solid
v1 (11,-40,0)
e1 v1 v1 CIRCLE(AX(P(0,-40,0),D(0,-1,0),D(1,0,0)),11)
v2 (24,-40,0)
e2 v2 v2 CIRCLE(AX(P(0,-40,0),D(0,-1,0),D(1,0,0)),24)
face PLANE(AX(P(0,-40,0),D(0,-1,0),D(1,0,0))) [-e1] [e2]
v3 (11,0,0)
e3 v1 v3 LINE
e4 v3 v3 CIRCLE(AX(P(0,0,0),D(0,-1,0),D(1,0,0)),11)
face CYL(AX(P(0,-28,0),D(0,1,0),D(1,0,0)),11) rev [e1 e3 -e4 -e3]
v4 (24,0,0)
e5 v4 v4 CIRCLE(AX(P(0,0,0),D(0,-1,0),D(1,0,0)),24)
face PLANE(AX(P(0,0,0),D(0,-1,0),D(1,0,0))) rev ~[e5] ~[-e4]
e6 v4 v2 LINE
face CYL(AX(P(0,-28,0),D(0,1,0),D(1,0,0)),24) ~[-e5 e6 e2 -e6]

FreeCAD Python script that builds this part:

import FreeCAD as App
import Part
import Sketcher
from FreeCAD import Vector
Q = App.Units.Quantity

doc = App.newDocument("Part")
params = doc.addObject("Spreadsheet::Sheet", "Params")
for row, (alias, value) in enumerate([
    ("sketch1_diameter", "48 mm"),
    ("sketch1_diameter2", "22 mm"),
    ("pad1_length", "12 mm"),
    ("sketch2_diameter", "48 mm"),
    ("sketch2_diameter2", "22 mm"),
    ("pad2_length", "16 mm"),
    ("sketch3_diameter", "48 mm"),
    ("sketch3_diameter2", "22 mm"),
    ("pad3_length", "12 mm"),
], start=1):
    params.set(f"A{row}", alias)
    params.set(f"B{row}", "=" + value)
    params.setAlias(f"B{row}", alias)

body = doc.addObject("PartDesign::Body", "Body")

# Sketch on XZ plane
sketch1 = doc.addObject("Sketcher::SketchObject", "Sketch")
body.addObject(sketch1)
sketch1.AttachmentSupport = (doc.XZ_Plane, [""])
sketch1.MapMode = "FlatFace"
sketch1.addGeometry(Part.Circle(Vector(0, 0, 0), Vector(0, 0, 1), 24), False)
sketch1.addGeometry(Part.Circle(Vector(0, 0, 0), Vector(0, 0, 1), 11), False)
sketch1.addConstraint(Sketcher.Constraint("Coincident", 0, 3, -1, 1))
sketch1.addConstraint(Sketcher.Constraint("Coincident", 1, 3, -1, 1))
sketch1.addConstraint(Sketcher.Constraint("Diameter", 0, Q("48 mm")))
sketch1.addConstraint(Sketcher.Constraint("Diameter", 1, Q("22 mm")))
sketch1.setExpression("Constraints[2]", "Params.sketch1_diameter")
sketch1.setExpression("Constraints[3]", "Params.sketch1_diameter2")
pad1 = doc.addObject("PartDesign::Pad", "Pad")
body.addObject(pad1)
pad1.Profile = sketch1
pad1.setExpression("Length", "Params.pad1_length")

# Sketch on XZ plane
sketch2 = doc.addObject("Sketcher::SketchObject", "Sketch001")
body.addObject(sketch2)
sketch2.AttachmentSupport = (doc.XZ_Plane, [""])
sketch2.MapMode = "FlatFace"
sketch2.AttachmentOffset = App.Placement(Vector(0, 0, 12), App.Rotation())
sketch2.addGeometry(Part.Circle(Vector(0, 0, 0), Vector(0, 0, 1), 24), False)
sketch2.addGeometry(Part.Circle(Vector(0, 0, 0), Vector(0, 0, 1), 11), False)
sketch2.addConstraint(Sketcher.Constraint("Coincident", 0, 3, -1, 1))
sketch2.addConstraint(Sketcher.Constraint("Coincident", 1, 3, -1, 1))
sketch2.addConstraint(Sketcher.Constraint("Diameter", 0, Q("48 mm")))
sketch2.addConstraint(Sketcher.Constraint("Diameter", 1, Q("22 mm")))
sketch2.setExpression("Constraints[2]", "Params.sketch2_diameter")
sketch2.setExpression("Constraints[3]", "Params.sketch2_diameter2")
pad2 = doc.addObject("PartDesign::Pad", "Pad001")
body.addObject(pad2)
pad2.Profile = sketch2
pad2.setExpression("Length", "Params.pad2_length")

# Sketch on XZ plane
sketch3 = doc.addObject("Sketcher::SketchObject", "Sketch002")
body.addObject(sketch3)
sketch3.AttachmentSupport = (doc.XZ_Plane, [""])
sketch3.MapMode = "FlatFace"
sketch3.AttachmentOffset = App.Placement(Vector(0, 0, 28), App.Rotation())
sketch3.addGeometry(Part.Circle(Vector(0, 0, 0), Vector(0, 0, 1), 24), False)
sketch3.addGeometry(Part.Circle(Vector(0, 0, 0), Vector(0, 0, 1), 11), False)
sketch3.addConstraint(Sketcher.Constraint("Coincident", 0, 3, -1, 1))
sketch3.addConstraint(Sketcher.Constraint("Coincident", 1, 3, -1, 1))
sketch3.addConstraint(Sketcher.Constraint("Diameter", 0, Q("48 mm")))
sketch3.addConstraint(Sketcher.Constraint("Diameter", 1, Q("22 mm")))
sketch3.setExpression("Constraints[2]", "Params.sketch3_diameter")
sketch3.setExpression("Constraints[3]", "Params.sketch3_diameter2")
pad3 = doc.addObject("PartDesign::Pad", "Pad002")
body.addObject(pad3)
pad3.Profile = sketch3
pad3.setExpression("Length", "Params.pad3_length")

doc.recompute()
